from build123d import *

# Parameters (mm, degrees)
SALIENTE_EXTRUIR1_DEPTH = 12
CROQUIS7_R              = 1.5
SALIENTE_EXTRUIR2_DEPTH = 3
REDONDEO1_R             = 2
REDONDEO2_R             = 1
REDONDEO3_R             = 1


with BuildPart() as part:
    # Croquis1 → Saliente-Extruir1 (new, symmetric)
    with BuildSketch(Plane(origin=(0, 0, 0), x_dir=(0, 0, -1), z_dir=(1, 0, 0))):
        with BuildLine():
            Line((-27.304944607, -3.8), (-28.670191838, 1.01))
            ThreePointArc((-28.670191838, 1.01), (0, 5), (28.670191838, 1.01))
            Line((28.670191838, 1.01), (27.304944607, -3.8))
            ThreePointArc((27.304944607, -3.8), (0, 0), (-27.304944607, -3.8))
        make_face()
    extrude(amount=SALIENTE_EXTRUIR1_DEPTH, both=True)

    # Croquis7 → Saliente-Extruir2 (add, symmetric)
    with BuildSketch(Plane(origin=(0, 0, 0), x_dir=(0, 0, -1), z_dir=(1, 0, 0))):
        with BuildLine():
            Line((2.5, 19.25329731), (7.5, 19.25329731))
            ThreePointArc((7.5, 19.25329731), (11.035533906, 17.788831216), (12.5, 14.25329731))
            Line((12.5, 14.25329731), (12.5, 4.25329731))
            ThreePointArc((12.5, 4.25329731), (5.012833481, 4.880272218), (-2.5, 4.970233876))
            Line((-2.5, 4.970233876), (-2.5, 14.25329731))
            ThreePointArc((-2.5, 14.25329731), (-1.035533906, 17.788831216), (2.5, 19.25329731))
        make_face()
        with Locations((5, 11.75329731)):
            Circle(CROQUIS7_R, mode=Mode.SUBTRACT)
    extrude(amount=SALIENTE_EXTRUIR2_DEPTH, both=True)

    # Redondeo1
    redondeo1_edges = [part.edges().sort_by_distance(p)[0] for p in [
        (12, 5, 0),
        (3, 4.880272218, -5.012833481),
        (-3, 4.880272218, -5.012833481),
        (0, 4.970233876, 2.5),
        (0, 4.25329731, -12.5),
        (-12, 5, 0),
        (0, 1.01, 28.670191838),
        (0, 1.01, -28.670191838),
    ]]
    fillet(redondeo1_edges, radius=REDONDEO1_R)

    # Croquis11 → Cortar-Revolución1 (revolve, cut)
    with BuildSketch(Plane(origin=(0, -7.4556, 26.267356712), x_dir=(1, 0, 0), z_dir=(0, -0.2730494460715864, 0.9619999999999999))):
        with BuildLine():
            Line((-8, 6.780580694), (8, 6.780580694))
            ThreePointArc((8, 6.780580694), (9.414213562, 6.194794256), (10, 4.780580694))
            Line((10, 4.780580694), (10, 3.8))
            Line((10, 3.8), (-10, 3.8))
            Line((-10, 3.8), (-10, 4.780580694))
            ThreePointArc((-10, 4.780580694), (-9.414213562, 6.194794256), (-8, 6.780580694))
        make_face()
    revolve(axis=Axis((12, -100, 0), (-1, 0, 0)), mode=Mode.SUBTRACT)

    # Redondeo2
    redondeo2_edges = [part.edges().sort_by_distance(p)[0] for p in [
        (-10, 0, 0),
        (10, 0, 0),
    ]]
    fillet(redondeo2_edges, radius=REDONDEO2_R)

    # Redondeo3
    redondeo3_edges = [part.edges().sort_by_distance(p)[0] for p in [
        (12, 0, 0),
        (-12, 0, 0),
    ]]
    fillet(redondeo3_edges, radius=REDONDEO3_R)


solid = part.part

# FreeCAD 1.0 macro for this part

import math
import FreeCAD as App
import Part
import Sketcher

V = App.Vector
Q = App.Units.Quantity


def edges_at(feature, points):
    """Names of the edges that pass closest to the given points."""
    edges = feature.Shape.Edges
    near = lambda p: min(range(len(edges)), key=lambda i: edges[i].distToShape(Part.Vertex(*p))[0])
    return sorted({f"Edge{near(p) + 1}" for p in points})

doc = App.newDocument("Part")
body = doc.addObject("PartDesign::Body", "Body")

sketch1 = body.newObject("Sketcher::SketchObject", "Sketch")
sketch1.AttachmentSupport = (doc.getObject("YZ_Plane"), [""])
sketch1.MapMode = "FlatFace"
sketch1.addGeometry([
    Part.LineSegment(V(1.01, 28.670192, 0), V(-3.8, 27.304945, 0)),
    Part.ArcOfCircle(Part.Circle(V(-100, 0, 0), V(0, 0, 1), 100), math.radians(-15.845808), math.radians(15.845808)),
    Part.LineSegment(V(-3.8, -27.304945, 0), V(1.01, -28.670192, 0)),
    Part.ArcOfCircle(Part.Circle(V(-100, 0, 0), V(0, 0, 1), 105), math.radians(-15.845808), math.radians(15.845808)),
], False)
sketch1.addConstraint([
    Sketcher.Constraint("Coincident", 0, 2, 1, 2),
    Sketcher.Constraint("Coincident", 1, 1, 2, 1),
    Sketcher.Constraint("Coincident", 2, 2, 3, 1),
    Sketcher.Constraint("Coincident", 3, 2, 0, 1),
    Sketcher.Constraint("Coincident", 3, 3, 1, 3),
    Sketcher.Constraint("Symmetric", 0, 2, 1, 1, -1),
    Sketcher.Constraint("Vertical", 2, 2, 3, 2),
    Sketcher.Constraint("Radius", 1, Q("100 mm")),
    Sketcher.Constraint("Radius", 3, Q("105 mm")),
    Sketcher.Constraint("DistanceX", 1, 3, -1, 1, Q("100 mm")),
    Sketcher.Constraint("DistanceX", 0, 2, -1, 1, Q("3.8 mm")),
    Sketcher.Constraint("DistanceX", -1, 1, 2, 2, Q("1.01 mm")),
])
pad1 = body.newObject("PartDesign::Pad", "Pad")
pad1.Profile = sketch1
pad1.Length = 24
pad1.Midplane = True

sketch2 = body.newObject("Sketcher::SketchObject", "Sketch001")
sketch2.AttachmentSupport = (doc.getObject("YZ_Plane"), [""])
sketch2.MapMode = "FlatFace"
sketch2.addGeometry([
    Part.LineSegment(V(19.253297, -7.5, 0), V(19.253297, -2.5, 0)),
    Part.ArcOfCircle(Part.Circle(V(14.253297, -2.5, 0), V(0, 0, 1), 5), math.radians(0), math.radians(90)),
    Part.LineSegment(V(14.253297, 2.5, 0), V(4.970234, 2.5, 0)),
    Part.ArcOfCircle(Part.Circle(V(-100, 0, 0), V(0, 0, 1), 105), math.radians(-6.837141), math.radians(1.364314)),
    Part.LineSegment(V(4.253297, -12.5, 0), V(14.253297, -12.5, 0)),
    Part.ArcOfCircle(Part.Circle(V(14.253297, -7.5, 0), V(0, 0, 1), 5), math.radians(-90), math.radians(0)),
    Part.Circle(V(11.753297, -5, 0), V(0, 0, 1), 1.5),
], False)
sketch2.addConstraint([
    Sketcher.Constraint("Tangent", 0, 2, 1, 1),
    Sketcher.Constraint("Tangent", 1, 2, 2, 1),
    Sketcher.Constraint("Coincident", 2, 2, 3, 2),
    Sketcher.Constraint("Coincident", 3, 1, 4, 1),
    Sketcher.Constraint("Tangent", 4, 2, 5, 1),
    Sketcher.Constraint("Tangent", 5, 2, 0, 1),
    Sketcher.Constraint("Vertical", 0),
    Sketcher.Constraint("Horizontal", 2),
    Sketcher.Constraint("Horizontal", 4),
    Sketcher.Constraint("Equal", 1, 5),
    Sketcher.Constraint("PointOnObject", 3, 3, -1),
    Sketcher.Constraint("Diameter", 6, Q("3 mm")),
    Sketcher.Constraint("Radius", 1, Q("5 mm")),
    Sketcher.Constraint("Radius", 3, Q("105 mm")),
    Sketcher.Constraint("DistanceX", 4, 1, 4, 2, Q("10 mm")),
    Sketcher.Constraint("DistanceY", 0, 1, 0, 2, Q("5 mm")),
    Sketcher.Constraint("DistanceX", 3, 3, -1, 1, Q("100 mm")),
    Sketcher.Constraint("DistanceY", 6, 3, -1, 1, Q("5 mm")),
    Sketcher.Constraint("DistanceY", 1, 3, -1, 1, Q("2.5 mm")),
    Sketcher.Constraint("DistanceX", 6, 3, 1, 3, Q("2.5 mm")),
])
pad2 = body.newObject("PartDesign::Pad", "Pad001")
pad2.Profile = sketch2
pad2.Length = 6
pad2.Midplane = True
doc.recompute()

fillet = body.newObject("PartDesign::Fillet", "Fillet")
fillet.Base = (pad2, edges_at(pad2, [
    (12, 5, 0),
    (3, 4.88, -5.013),
    (-3, 4.88, -5.013),
    (0, 4.97, 2.5),
    (0, 4.253, -12.5),
    (-12, 5, 0),
    (0, 1.01, 28.67),
    (0, 1.01, -28.67),
]))
fillet.Radius = 2

sketch3 = body.newObject("Sketcher::SketchObject", "Sketch002")
sketch3.Placement = App.Placement(V(0, -7.4556, 26.267357), App.Rotation(V(1, 0, 0), V(0, 0.962, 0.273049446), V(0, -0.273049446, 0.962), "ZXY"))
sketch3.addGeometry([
    Part.LineSegment(V(8, 6.780581, 0), V(-8, 6.780581, 0)),
    Part.ArcOfCircle(Part.Circle(V(-8, 4.780581, 0), V(0, 0, 1), 2), math.radians(90), math.radians(180)),
    Part.LineSegment(V(-10, 4.780581, 0), V(-10, 3.8, 0)),
    Part.LineSegment(V(-10, 3.8, 0), V(10, 3.8, 0)),
    Part.LineSegment(V(10, 3.8, 0), V(10, 4.780581, 0)),
    Part.ArcOfCircle(Part.Circle(V(8, 4.780581, 0), V(0, 0, 1), 2), math.radians(0), math.radians(90)),
], False)
sketch3.addGeometry(Part.LineSegment(V(10, -96.2, 0), V(-10, -96.2, 0)), True)
sketch3.addConstraint([
    Sketcher.Constraint("Tangent", 0, 2, 1, 1),
    Sketcher.Constraint("Tangent", 1, 2, 2, 1),
    Sketcher.Constraint("Coincident", 2, 2, 3, 1),
    Sketcher.Constraint("Coincident", 3, 2, 4, 1),
    Sketcher.Constraint("Tangent", 4, 2, 5, 1),
    Sketcher.Constraint("Tangent", 5, 2, 0, 1),
    Sketcher.Constraint("Horizontal", 0),
    Sketcher.Constraint("Vertical", 2),
    Sketcher.Constraint("Horizontal", 3),
    Sketcher.Constraint("Vertical", 4),
    Sketcher.Constraint("Horizontal", 6),
    Sketcher.Constraint("Equal", 1, 5),
    Sketcher.Constraint("Vertical", 4, 2, 6, 1),
    Sketcher.Constraint("Vertical", 2, 2, 6, 2),
    Sketcher.Constraint("Radius", 1, Q("2 mm")),
    Sketcher.Constraint("DistanceX", 0, 2, 0, 1, Q("16 mm")),
    Sketcher.Constraint("DistanceX", 1, 3, -1, 1, Q("8 mm")),
    Sketcher.Constraint("DistanceY", 6, 1, 3, 2, Q("100 mm")),
    Sketcher.Constraint("DistanceY", -1, 1, 2, 2, Q("3.8 mm")),
    Sketcher.Constraint("DistanceY", 2, 2, 2, 1, Q("0.980581 mm")),
])
groove = body.newObject("PartDesign::Groove", "Groove")
groove.Profile = sketch3
groove.ReferenceAxis = (sketch3, ["Axis0"])
groove.Angle = 360
doc.recompute()

fillet2 = body.newObject("PartDesign::Fillet", "Fillet001")
fillet2.Base = (groove, edges_at(groove, [(-10, 0, 0), (10, 0, 0)]))
fillet2.Radius = 1
doc.recompute()

fillet3 = body.newObject("PartDesign::Fillet", "Fillet002")
fillet3.Base = (fillet2, edges_at(fillet2, [(12, 0, 0), (-12, 0, 0)]))
fillet3.Radius = 1

doc.recompute()
